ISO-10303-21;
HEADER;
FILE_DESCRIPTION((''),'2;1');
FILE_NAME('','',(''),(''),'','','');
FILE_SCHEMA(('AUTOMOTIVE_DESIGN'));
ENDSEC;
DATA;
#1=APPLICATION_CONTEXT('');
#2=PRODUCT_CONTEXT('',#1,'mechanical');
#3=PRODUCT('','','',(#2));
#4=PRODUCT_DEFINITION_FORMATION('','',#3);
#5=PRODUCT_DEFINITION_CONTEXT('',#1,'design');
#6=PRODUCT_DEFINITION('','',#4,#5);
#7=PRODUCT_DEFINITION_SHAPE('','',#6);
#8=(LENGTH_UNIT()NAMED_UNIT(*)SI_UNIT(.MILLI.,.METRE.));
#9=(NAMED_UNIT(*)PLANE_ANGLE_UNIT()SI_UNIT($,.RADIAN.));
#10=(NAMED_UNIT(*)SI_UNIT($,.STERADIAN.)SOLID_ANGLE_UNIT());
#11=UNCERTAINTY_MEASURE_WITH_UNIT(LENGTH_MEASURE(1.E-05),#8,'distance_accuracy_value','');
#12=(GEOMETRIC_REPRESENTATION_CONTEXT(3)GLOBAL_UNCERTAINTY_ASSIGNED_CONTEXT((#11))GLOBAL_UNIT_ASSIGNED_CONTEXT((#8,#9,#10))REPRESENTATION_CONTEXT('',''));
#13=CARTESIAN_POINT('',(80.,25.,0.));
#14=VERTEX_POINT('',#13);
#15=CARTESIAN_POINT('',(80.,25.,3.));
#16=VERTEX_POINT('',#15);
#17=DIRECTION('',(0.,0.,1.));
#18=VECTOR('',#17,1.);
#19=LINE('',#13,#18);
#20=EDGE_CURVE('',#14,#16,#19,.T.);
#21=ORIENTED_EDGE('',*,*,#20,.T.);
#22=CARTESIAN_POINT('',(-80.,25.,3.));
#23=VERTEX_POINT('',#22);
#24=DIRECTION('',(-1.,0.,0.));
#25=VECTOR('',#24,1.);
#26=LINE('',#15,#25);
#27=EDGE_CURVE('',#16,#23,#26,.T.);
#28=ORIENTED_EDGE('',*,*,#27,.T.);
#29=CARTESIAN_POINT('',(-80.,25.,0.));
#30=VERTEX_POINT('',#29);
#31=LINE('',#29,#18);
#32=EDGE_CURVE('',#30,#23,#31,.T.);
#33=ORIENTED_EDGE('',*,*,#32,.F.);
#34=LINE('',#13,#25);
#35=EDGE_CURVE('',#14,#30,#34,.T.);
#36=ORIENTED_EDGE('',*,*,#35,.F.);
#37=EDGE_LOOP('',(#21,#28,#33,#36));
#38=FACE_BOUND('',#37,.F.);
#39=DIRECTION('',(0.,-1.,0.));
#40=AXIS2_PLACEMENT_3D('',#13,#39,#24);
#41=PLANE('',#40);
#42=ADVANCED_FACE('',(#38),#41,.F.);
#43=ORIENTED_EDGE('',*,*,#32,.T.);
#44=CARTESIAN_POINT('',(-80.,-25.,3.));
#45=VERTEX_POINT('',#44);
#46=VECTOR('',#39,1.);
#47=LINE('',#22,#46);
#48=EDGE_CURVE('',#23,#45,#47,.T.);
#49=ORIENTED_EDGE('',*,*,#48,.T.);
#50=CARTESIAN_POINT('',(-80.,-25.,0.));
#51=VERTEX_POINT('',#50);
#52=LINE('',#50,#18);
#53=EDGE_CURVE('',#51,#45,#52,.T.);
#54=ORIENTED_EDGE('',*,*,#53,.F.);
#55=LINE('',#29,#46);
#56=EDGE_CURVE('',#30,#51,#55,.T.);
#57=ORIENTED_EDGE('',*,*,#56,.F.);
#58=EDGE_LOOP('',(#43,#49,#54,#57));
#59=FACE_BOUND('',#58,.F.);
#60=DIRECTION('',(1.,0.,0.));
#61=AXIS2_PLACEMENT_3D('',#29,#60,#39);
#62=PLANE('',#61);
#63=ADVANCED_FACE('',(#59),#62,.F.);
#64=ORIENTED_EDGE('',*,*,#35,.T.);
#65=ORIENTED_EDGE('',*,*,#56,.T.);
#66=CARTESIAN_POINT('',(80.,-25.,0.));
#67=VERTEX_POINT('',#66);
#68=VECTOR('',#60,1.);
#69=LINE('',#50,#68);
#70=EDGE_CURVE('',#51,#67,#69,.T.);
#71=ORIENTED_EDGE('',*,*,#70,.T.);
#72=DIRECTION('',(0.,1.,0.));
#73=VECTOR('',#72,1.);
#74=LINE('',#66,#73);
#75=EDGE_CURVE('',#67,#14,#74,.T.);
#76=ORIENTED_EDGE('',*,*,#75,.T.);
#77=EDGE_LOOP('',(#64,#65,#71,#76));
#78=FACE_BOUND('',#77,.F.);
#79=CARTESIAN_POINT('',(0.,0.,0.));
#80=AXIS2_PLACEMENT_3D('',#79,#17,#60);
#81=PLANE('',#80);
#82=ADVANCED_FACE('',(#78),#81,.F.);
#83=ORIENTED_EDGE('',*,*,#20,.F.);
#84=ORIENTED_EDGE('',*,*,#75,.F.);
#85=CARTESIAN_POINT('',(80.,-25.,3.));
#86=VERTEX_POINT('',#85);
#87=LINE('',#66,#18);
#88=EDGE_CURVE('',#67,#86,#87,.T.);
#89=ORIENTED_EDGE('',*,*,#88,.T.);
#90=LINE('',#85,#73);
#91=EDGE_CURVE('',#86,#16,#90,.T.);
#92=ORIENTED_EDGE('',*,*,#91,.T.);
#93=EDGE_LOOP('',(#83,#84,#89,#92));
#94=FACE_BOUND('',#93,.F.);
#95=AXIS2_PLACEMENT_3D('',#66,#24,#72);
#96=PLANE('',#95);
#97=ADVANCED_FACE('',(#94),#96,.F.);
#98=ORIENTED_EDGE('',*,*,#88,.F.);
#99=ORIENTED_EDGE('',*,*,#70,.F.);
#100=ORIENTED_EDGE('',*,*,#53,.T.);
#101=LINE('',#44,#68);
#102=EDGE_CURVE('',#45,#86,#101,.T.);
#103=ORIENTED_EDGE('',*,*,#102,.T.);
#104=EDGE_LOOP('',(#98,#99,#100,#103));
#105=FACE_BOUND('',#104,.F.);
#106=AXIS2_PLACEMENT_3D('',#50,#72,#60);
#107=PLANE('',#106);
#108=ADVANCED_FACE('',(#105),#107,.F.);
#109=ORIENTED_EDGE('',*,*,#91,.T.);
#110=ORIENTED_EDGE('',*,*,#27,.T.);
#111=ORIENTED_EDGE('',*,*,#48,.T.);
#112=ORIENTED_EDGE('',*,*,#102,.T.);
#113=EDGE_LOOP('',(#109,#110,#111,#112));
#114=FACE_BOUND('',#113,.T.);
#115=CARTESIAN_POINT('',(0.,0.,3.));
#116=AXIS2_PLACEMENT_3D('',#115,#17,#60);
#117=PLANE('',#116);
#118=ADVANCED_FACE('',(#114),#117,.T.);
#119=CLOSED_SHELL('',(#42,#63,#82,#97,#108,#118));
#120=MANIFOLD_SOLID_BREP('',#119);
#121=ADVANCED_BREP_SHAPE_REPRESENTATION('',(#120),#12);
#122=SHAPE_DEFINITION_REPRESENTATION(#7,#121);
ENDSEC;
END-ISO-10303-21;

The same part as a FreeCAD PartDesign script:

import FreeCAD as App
import Part
import Sketcher
from FreeCAD import Vector
Q = App.Units.Quantity

doc = App.newDocument("Part")
body = doc.addObject("PartDesign::Body", "Body")

# Sketch on XY plane
sketch1 = body.newObject("Sketcher::SketchObject", "Sketch")
sketch1.AttachmentSupport = (doc.getObject("XY_Plane"), [""])
sketch1.MapMode = "FlatFace"
sketch1.addGeometry(Part.LineSegment(Vector(-80, 25, 0), Vector(-80, -25, 0)), False)
sketch1.addGeometry(Part.LineSegment(Vector(-80, -25, 0), Vector(80, -25, 0)), False)
sketch1.addGeometry(Part.LineSegment(Vector(80, -25, 0), Vector(80, 25, 0)), False)
sketch1.addGeometry(Part.LineSegment(Vector(80, 25, 0), Vector(-80, 25, 0)), False)
sketch1.addConstraint(Sketcher.Constraint("Coincident", 0, 2, 1, 1))
sketch1.addConstraint(Sketcher.Constraint("Coincident", 1, 2, 2, 1))
sketch1.addConstraint(Sketcher.Constraint("Coincident", 2, 2, 3, 1))
sketch1.addConstraint(Sketcher.Constraint("Coincident", 3, 2, 0, 1))
sketch1.addConstraint(Sketcher.Constraint("Vertical", 0))
sketch1.addConstraint(Sketcher.Constraint("Horizontal", 1))
sketch1.addConstraint(Sketcher.Constraint("Vertical", 2))
sketch1.addConstraint(Sketcher.Constraint("Horizontal", 3))
sketch1.addConstraint(Sketcher.Constraint("Symmetric", 0, 2, 2, 2, -1, 1))
sketch1.addConstraint(Sketcher.Constraint("DistanceX", 1, 1, 1, 2, Q("160 mm")))
sketch1.addConstraint(Sketcher.Constraint("DistanceY", 0, 2, 0, 1, Q("50 mm")))
pad1 = body.newObject("PartDesign::Pad", "Pad")
pad1.Profile = sketch1
pad1.Length = 3

doc.recompute()
